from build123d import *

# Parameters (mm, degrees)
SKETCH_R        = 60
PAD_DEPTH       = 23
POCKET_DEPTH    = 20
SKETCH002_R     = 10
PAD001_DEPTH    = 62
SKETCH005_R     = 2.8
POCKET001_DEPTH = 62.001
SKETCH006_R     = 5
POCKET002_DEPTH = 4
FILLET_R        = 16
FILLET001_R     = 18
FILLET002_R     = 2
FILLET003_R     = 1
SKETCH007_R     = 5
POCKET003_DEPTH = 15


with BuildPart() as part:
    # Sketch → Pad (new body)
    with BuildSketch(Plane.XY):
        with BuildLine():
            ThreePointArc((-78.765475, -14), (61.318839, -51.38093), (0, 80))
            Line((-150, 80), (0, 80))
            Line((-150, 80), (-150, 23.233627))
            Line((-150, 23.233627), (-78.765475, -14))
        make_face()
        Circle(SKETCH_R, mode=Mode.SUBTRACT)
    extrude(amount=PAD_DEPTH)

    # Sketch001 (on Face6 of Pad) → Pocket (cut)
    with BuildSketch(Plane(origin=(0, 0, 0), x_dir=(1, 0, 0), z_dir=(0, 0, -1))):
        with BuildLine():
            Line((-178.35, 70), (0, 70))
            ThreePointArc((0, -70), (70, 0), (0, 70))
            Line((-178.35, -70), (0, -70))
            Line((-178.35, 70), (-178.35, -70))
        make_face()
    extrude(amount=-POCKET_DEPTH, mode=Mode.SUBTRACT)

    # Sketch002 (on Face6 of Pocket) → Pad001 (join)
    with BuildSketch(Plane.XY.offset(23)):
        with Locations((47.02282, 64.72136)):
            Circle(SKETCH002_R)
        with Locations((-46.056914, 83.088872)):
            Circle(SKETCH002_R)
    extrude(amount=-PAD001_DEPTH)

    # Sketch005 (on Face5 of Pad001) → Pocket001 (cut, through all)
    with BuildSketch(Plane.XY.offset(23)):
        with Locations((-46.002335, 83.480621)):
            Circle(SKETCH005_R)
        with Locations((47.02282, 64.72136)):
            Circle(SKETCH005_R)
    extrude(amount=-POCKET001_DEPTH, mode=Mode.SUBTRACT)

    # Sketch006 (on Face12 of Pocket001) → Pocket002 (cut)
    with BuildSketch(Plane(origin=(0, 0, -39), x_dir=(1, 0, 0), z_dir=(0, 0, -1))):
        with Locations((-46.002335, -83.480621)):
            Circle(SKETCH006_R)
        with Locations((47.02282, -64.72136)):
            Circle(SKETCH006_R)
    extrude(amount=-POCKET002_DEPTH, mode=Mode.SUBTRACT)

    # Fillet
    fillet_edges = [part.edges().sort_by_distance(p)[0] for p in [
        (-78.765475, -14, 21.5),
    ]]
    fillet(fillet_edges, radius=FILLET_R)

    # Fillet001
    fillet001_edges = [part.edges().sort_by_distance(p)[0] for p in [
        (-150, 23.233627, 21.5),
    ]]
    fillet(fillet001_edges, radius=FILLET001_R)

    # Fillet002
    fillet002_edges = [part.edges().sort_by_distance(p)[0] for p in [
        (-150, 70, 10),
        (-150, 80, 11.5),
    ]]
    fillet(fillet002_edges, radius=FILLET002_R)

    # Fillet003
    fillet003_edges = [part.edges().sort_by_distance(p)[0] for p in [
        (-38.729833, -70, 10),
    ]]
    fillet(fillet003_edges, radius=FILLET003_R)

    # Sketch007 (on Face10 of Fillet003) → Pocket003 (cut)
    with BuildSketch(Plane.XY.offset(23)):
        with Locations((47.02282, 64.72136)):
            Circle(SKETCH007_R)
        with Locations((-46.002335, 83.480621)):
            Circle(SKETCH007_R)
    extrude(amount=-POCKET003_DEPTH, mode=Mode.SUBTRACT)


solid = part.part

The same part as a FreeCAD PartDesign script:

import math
import FreeCAD as App
import Part
import Sketcher
from FreeCAD import Vector
Q = App.Units.Quantity


def edges_at(feature, points):
    """Names of the edges that pass closest to the given points."""
    edges = feature.Shape.Edges
    near = lambda p: min(range(len(edges)), key=lambda i: edges[i].distToShape(Part.Vertex(*p))[0])
    return sorted({f"Edge{near(p) + 1}" for p in points})

doc = App.newDocument("Part")
params = doc.addObject("Spreadsheet::Sheet", "Params")
for row, (alias, value) in enumerate([
    ("sketch1_diameter", "120 mm"),
    ("sketch1_radius", "80 mm"),
    ("sketch1_width", "150 mm"),
    ("pad1_length", "23 mm"),
    ("sketch2_radius", "70 mm"),
    ("sketch2_width", "178.35 mm"),
    ("pocket1_length", "20 mm"),
    ("sketch3_diameter", "20 mm"),
    ("pad2_length", "62 mm"),
    ("sketch4_diameter", "5.6 mm"),
    ("sketch5_diameter", "10 mm"),
    ("pocket3_length", "4 mm"),
    ("fillet_radius", "16 mm"),
    ("fillet2_radius", "18 mm"),
    ("fillet3_radius", "2 mm"),
    ("fillet4_radius", "1 mm"),
    ("sketch6_diameter", "10 mm"),
    ("pocket4_length", "15 mm"),
], start=1):
    params.set(f"A{row}", alias)
    params.set(f"B{row}", "=" + value)
    params.setAlias(f"B{row}", alias)

body = doc.addObject("PartDesign::Body", "Body")

sketch1 = doc.addObject("Sketcher::SketchObject", "Sketch")
body.addObject(sketch1)
sketch1.AttachmentSupport = (doc.XY_Plane, [""])
sketch1.MapMode = "FlatFace"
sketch1.addGeometry(Part.ArcOfCircle(Part.Circle(Vector(0, 0, 0), Vector(0, 0, 1), 80), math.radians(-170), math.radians(90)), False)
sketch1.addGeometry(Part.LineSegment(Vector(0, 80, 0), Vector(-150, 80, 0)), False)
sketch1.addGeometry(Part.LineSegment(Vector(-150, 80, 0), Vector(-150, 23, 0)), False)
sketch1.addGeometry(Part.LineSegment(Vector(-150, 23, 0), Vector(-79, -14, 0)), False)
sketch1.addGeometry(Part.Circle(Vector(0, 0, 0), Vector(0, 0, 1), 60), False)
sketch1.addConstraint(Sketcher.Constraint("Tangent", 0, 2, 1, 1))
sketch1.addConstraint(Sketcher.Constraint("Coincident", 1, 2, 2, 1))
sketch1.addConstraint(Sketcher.Constraint("Coincident", 2, 2, 3, 1))
sketch1.addConstraint(Sketcher.Constraint("Coincident", 3, 2, 0, 1))
sketch1.addConstraint(Sketcher.Constraint("Horizontal", 1))
sketch1.addConstraint(Sketcher.Constraint("Vertical", 2))
sketch1.addConstraint(Sketcher.Constraint("Coincident", 0, 3, -1, 1))
sketch1.addConstraint(Sketcher.Constraint("Coincident", 4, 3, -1, 1))
sketch1.addConstraint(Sketcher.Constraint("Diameter", 4, Q("120 mm")))
sketch1.addConstraint(Sketcher.Constraint("Radius", 0, Q("80 mm")))
sketch1.addConstraint(Sketcher.Constraint("DistanceX", 1, 2, 1, 1, Q("150 mm")))
sketch1.addConstraint(Sketcher.Constraint("DistanceY", 3, 2, -1, 1, Q("14 mm")))
sketch1.addConstraint(Sketcher.Constraint("DistanceY", 2, 2, 2, 1, Q("56.766373 mm")))
sketch1.setExpression("Constraints[8]", "Params.sketch1_diameter")
sketch1.setExpression("Constraints[9]", "Params.sketch1_radius")
sketch1.setExpression("Constraints[10]", "Params.sketch1_width")
pad1 = doc.addObject("PartDesign::Pad", "Pad")
body.addObject(pad1)
pad1.Profile = sketch1
pad1.setExpression("Length", "Params.pad1_length")

sketch2 = doc.addObject("Sketcher::SketchObject", "Sketch001")
body.addObject(sketch2)
sketch2.AttachmentSupport = (doc.XY_Plane, [""])
sketch2.MapMode = "FlatFace"
sketch2.addGeometry(Part.LineSegment(Vector(0, -70, 0), Vector(-178, -70, 0)), False)
sketch2.addGeometry(Part.LineSegment(Vector(-178, -70, 0), Vector(-178, 70, 0)), False)
sketch2.addGeometry(Part.LineSegment(Vector(-178, 70, 0), Vector(0, 70, 0)), False)
sketch2.addGeometry(Part.ArcOfCircle(Part.Circle(Vector(0, 0, 0), Vector(0, 0, 1), 70), math.radians(-90), math.radians(90)), False)
sketch2.addConstraint(Sketcher.Constraint("Coincident", 0, 2, 1, 1))
sketch2.addConstraint(Sketcher.Constraint("Coincident", 1, 2, 2, 1))
sketch2.addConstraint(Sketcher.Constraint("Tangent", 2, 2, 3, 2))
sketch2.addConstraint(Sketcher.Constraint("Tangent", 3, 1, 0, 1))
sketch2.addConstraint(Sketcher.Constraint("Horizontal", 0))
sketch2.addConstraint(Sketcher.Constraint("Vertical", 1))
sketch2.addConstraint(Sketcher.Constraint("Horizontal", 2))
sketch2.addConstraint(Sketcher.Constraint("Coincident", 3, 3, -1, 1))
sketch2.addConstraint(Sketcher.Constraint("Radius", 3, Q("70 mm")))
sketch2.addConstraint(Sketcher.Constraint("DistanceX", 0, 2, 0, 1, Q("178.35 mm")))
sketch2.setExpression("Constraints[8]", "Params.sketch2_radius")
sketch2.setExpression("Constraints[9]", "Params.sketch2_width")
pocket1 = doc.addObject("PartDesign::Pocket", "Pocket")
body.addObject(pocket1)
pocket1.Profile = sketch2
pocket1.setExpression("Length", "Params.pocket1_length")
pocket1.Reversed = True

sketch3 = doc.addObject("Sketcher::SketchObject", "Sketch002")
body.addObject(sketch3)
sketch3.AttachmentSupport = (doc.XY_Plane, [""])
sketch3.MapMode = "FlatFace"
sketch3.AttachmentOffset = App.Placement(Vector(0, 0, 23), App.Rotation())
sketch3.addGeometry(Part.Circle(Vector(47, 65, 0), Vector(0, 0, 1), 10), False)
sketch3.addGeometry(Part.Circle(Vector(-46, 83, 0), Vector(0, 0, 1), 10), False)
sketch3.addConstraint(Sketcher.Constraint("Equal", 0, 1))
sketch3.addConstraint(Sketcher.Constraint("Diameter", 0, Q("20 mm")))
sketch3.addConstraint(Sketcher.Constraint("DistanceX", -1, 1, 0, 3, Q("47.02282 mm")))
sketch3.addConstraint(Sketcher.Constraint("DistanceY", -1, 1, 0, 3, Q("64.72136 mm")))
sketch3.addConstraint(Sketcher.Constraint("DistanceY", -1, 1, 1, 3, Q("83.088872 mm")))
sketch3.addConstraint(Sketcher.Constraint("DistanceX", 1, 3, -1, 1, Q("46.056914 mm")))
sketch3.setExpression("Constraints[1]", "Params.sketch3_diameter")
pad2 = doc.addObject("PartDesign::Pad", "Pad001")
body.addObject(pad2)
pad2.Profile = sketch3
pad2.setExpression("Length", "Params.pad2_length")
pad2.Reversed = True

sketch4 = doc.addObject("Sketcher::SketchObject", "Sketch003")
body.addObject(sketch4)
sketch4.AttachmentSupport = (doc.XY_Plane, [""])
sketch4.MapMode = "FlatFace"
sketch4.AttachmentOffset = App.Placement(Vector(0, 0, 23), App.Rotation())
sketch4.addGeometry(Part.Circle(Vector(-46, 83.5, 0), Vector(0, 0, 1), 2.8), False)
sketch4.addGeometry(Part.Circle(Vector(47, 64.7, 0), Vector(0, 0, 1), 2.8), False)
sketch4.addConstraint(Sketcher.Constraint("Equal", 0, 1))
sketch4.addConstraint(Sketcher.Constraint("Diameter", 0, Q("5.6 mm")))
sketch4.addConstraint(Sketcher.Constraint("DistanceY", -1, 1, 0, 3, Q("83.480621 mm")))
sketch4.addConstraint(Sketcher.Constraint("DistanceX", -1, 1, 1, 3, Q("47.02282 mm")))
sketch4.addConstraint(Sketcher.Constraint("DistanceY", -1, 1, 1, 3, Q("64.72136 mm")))
sketch4.addConstraint(Sketcher.Constraint("DistanceX", 0, 3, -1, 1, Q("46.002335 mm")))
sketch4.setExpression("Constraints[1]", "Params.sketch4_diameter")
pocket2 = doc.addObject("PartDesign::Pocket", "Pocket001")
body.addObject(pocket2)
pocket2.Profile = sketch4
pocket2.Type = "ThroughAll"

sketch5 = doc.addObject("Sketcher::SketchObject", "Sketch004")
body.addObject(sketch5)
sketch5.AttachmentSupport = (doc.XY_Plane, [""])
sketch5.MapMode = "FlatFace"
sketch5.AttachmentOffset = App.Placement(Vector(0, 0, -39), App.Rotation())
sketch5.addGeometry(Part.Circle(Vector(-46, 83, 0), Vector(0, 0, 1), 5), False)
sketch5.addGeometry(Part.Circle(Vector(47, 65, 0), Vector(0, 0, 1), 5), False)
sketch5.addConstraint(Sketcher.Constraint("Equal", 0, 1))
sketch5.addConstraint(Sketcher.Constraint("Diameter", 0, Q("10 mm")))
sketch5.addConstraint(Sketcher.Constraint("DistanceY", -1, 1, 0, 3, Q("83.480621 mm")))
sketch5.addConstraint(Sketcher.Constraint("DistanceX", -1, 1, 1, 3, Q("47.02282 mm")))
sketch5.addConstraint(Sketcher.Constraint("DistanceY", -1, 1, 1, 3, Q("64.72136 mm")))
sketch5.addConstraint(Sketcher.Constraint("DistanceX", 0, 3, -1, 1, Q("46.002335 mm")))
sketch5.setExpression("Constraints[1]", "Params.sketch5_diameter")
pocket3 = doc.addObject("PartDesign::Pocket", "Pocket002")
body.addObject(pocket3)
pocket3.Profile = sketch5
pocket3.setExpression("Length", "Params.pocket3_length")
pocket3.Reversed = True
doc.recompute()

fillet = doc.addObject("PartDesign::Fillet", "Fillet")
body.addObject(fillet)
fillet.Base = (pocket3, edges_at(pocket3, [(-78.765, -14, 21.5)]))
fillet.setExpression("Radius", "Params.fillet_radius")
doc.recompute()

fillet2 = doc.addObject("PartDesign::Fillet", "Fillet001")
body.addObject(fillet2)
fillet2.Base = (fillet, edges_at(fillet, [(-150, 23.234, 21.5)]))
fillet2.setExpression("Radius", "Params.fillet2_radius")
doc.recompute()

fillet3 = doc.addObject("PartDesign::Fillet", "Fillet002")
body.addObject(fillet3)
fillet3.Base = (fillet2, edges_at(fillet2, [(-150, 70, 10), (-150, 80, 11.5)]))
fillet3.setExpression("Radius", "Params.fillet3_radius")
doc.recompute()

fillet4 = doc.addObject("PartDesign::Fillet", "Fillet003")
body.addObject(fillet4)
fillet4.Base = (fillet3, edges_at(fillet3, [(-38.73, -70, 10)]))
fillet4.setExpression("Radius", "Params.fillet4_radius")

sketch6 = doc.addObject("Sketcher::SketchObject", "Sketch005")
body.addObject(sketch6)
sketch6.AttachmentSupport = (doc.XY_Plane, [""])
sketch6.MapMode = "FlatFace"
sketch6.AttachmentOffset = App.Placement(Vector(0, 0, 23), App.Rotation())
sketch6.addGeometry(Part.Circle(Vector(47, 65, 0), Vector(0, 0, 1), 5), False)
sketch6.addGeometry(Part.Circle(Vector(-46, 83, 0), Vector(0, 0, 1), 5), False)
sketch6.addConstraint(Sketcher.Constraint("Equal", 0, 1))
sketch6.addConstraint(Sketcher.Constraint("Diameter", 0, Q("10 mm")))
sketch6.addConstraint(Sketcher.Constraint("DistanceX", -1, 1, 0, 3, Q("47.02282 mm")))
sketch6.addConstraint(Sketcher.Constraint("DistanceY", -1, 1, 0, 3, Q("64.72136 mm")))
sketch6.addConstraint(Sketcher.Constraint("DistanceY", -1, 1, 1, 3, Q("83.480621 mm")))
sketch6.addConstraint(Sketcher.Constraint("DistanceX", 1, 3, -1, 1, Q("46.002335 mm")))
sketch6.setExpression("Constraints[1]", "Params.sketch6_diameter")
pocket4 = doc.addObject("PartDesign::Pocket", "Pocket003")
body.addObject(pocket4)
pocket4.Profile = sketch6
pocket4.setExpression("Length", "Params.pocket4_length")

doc.recompute()
